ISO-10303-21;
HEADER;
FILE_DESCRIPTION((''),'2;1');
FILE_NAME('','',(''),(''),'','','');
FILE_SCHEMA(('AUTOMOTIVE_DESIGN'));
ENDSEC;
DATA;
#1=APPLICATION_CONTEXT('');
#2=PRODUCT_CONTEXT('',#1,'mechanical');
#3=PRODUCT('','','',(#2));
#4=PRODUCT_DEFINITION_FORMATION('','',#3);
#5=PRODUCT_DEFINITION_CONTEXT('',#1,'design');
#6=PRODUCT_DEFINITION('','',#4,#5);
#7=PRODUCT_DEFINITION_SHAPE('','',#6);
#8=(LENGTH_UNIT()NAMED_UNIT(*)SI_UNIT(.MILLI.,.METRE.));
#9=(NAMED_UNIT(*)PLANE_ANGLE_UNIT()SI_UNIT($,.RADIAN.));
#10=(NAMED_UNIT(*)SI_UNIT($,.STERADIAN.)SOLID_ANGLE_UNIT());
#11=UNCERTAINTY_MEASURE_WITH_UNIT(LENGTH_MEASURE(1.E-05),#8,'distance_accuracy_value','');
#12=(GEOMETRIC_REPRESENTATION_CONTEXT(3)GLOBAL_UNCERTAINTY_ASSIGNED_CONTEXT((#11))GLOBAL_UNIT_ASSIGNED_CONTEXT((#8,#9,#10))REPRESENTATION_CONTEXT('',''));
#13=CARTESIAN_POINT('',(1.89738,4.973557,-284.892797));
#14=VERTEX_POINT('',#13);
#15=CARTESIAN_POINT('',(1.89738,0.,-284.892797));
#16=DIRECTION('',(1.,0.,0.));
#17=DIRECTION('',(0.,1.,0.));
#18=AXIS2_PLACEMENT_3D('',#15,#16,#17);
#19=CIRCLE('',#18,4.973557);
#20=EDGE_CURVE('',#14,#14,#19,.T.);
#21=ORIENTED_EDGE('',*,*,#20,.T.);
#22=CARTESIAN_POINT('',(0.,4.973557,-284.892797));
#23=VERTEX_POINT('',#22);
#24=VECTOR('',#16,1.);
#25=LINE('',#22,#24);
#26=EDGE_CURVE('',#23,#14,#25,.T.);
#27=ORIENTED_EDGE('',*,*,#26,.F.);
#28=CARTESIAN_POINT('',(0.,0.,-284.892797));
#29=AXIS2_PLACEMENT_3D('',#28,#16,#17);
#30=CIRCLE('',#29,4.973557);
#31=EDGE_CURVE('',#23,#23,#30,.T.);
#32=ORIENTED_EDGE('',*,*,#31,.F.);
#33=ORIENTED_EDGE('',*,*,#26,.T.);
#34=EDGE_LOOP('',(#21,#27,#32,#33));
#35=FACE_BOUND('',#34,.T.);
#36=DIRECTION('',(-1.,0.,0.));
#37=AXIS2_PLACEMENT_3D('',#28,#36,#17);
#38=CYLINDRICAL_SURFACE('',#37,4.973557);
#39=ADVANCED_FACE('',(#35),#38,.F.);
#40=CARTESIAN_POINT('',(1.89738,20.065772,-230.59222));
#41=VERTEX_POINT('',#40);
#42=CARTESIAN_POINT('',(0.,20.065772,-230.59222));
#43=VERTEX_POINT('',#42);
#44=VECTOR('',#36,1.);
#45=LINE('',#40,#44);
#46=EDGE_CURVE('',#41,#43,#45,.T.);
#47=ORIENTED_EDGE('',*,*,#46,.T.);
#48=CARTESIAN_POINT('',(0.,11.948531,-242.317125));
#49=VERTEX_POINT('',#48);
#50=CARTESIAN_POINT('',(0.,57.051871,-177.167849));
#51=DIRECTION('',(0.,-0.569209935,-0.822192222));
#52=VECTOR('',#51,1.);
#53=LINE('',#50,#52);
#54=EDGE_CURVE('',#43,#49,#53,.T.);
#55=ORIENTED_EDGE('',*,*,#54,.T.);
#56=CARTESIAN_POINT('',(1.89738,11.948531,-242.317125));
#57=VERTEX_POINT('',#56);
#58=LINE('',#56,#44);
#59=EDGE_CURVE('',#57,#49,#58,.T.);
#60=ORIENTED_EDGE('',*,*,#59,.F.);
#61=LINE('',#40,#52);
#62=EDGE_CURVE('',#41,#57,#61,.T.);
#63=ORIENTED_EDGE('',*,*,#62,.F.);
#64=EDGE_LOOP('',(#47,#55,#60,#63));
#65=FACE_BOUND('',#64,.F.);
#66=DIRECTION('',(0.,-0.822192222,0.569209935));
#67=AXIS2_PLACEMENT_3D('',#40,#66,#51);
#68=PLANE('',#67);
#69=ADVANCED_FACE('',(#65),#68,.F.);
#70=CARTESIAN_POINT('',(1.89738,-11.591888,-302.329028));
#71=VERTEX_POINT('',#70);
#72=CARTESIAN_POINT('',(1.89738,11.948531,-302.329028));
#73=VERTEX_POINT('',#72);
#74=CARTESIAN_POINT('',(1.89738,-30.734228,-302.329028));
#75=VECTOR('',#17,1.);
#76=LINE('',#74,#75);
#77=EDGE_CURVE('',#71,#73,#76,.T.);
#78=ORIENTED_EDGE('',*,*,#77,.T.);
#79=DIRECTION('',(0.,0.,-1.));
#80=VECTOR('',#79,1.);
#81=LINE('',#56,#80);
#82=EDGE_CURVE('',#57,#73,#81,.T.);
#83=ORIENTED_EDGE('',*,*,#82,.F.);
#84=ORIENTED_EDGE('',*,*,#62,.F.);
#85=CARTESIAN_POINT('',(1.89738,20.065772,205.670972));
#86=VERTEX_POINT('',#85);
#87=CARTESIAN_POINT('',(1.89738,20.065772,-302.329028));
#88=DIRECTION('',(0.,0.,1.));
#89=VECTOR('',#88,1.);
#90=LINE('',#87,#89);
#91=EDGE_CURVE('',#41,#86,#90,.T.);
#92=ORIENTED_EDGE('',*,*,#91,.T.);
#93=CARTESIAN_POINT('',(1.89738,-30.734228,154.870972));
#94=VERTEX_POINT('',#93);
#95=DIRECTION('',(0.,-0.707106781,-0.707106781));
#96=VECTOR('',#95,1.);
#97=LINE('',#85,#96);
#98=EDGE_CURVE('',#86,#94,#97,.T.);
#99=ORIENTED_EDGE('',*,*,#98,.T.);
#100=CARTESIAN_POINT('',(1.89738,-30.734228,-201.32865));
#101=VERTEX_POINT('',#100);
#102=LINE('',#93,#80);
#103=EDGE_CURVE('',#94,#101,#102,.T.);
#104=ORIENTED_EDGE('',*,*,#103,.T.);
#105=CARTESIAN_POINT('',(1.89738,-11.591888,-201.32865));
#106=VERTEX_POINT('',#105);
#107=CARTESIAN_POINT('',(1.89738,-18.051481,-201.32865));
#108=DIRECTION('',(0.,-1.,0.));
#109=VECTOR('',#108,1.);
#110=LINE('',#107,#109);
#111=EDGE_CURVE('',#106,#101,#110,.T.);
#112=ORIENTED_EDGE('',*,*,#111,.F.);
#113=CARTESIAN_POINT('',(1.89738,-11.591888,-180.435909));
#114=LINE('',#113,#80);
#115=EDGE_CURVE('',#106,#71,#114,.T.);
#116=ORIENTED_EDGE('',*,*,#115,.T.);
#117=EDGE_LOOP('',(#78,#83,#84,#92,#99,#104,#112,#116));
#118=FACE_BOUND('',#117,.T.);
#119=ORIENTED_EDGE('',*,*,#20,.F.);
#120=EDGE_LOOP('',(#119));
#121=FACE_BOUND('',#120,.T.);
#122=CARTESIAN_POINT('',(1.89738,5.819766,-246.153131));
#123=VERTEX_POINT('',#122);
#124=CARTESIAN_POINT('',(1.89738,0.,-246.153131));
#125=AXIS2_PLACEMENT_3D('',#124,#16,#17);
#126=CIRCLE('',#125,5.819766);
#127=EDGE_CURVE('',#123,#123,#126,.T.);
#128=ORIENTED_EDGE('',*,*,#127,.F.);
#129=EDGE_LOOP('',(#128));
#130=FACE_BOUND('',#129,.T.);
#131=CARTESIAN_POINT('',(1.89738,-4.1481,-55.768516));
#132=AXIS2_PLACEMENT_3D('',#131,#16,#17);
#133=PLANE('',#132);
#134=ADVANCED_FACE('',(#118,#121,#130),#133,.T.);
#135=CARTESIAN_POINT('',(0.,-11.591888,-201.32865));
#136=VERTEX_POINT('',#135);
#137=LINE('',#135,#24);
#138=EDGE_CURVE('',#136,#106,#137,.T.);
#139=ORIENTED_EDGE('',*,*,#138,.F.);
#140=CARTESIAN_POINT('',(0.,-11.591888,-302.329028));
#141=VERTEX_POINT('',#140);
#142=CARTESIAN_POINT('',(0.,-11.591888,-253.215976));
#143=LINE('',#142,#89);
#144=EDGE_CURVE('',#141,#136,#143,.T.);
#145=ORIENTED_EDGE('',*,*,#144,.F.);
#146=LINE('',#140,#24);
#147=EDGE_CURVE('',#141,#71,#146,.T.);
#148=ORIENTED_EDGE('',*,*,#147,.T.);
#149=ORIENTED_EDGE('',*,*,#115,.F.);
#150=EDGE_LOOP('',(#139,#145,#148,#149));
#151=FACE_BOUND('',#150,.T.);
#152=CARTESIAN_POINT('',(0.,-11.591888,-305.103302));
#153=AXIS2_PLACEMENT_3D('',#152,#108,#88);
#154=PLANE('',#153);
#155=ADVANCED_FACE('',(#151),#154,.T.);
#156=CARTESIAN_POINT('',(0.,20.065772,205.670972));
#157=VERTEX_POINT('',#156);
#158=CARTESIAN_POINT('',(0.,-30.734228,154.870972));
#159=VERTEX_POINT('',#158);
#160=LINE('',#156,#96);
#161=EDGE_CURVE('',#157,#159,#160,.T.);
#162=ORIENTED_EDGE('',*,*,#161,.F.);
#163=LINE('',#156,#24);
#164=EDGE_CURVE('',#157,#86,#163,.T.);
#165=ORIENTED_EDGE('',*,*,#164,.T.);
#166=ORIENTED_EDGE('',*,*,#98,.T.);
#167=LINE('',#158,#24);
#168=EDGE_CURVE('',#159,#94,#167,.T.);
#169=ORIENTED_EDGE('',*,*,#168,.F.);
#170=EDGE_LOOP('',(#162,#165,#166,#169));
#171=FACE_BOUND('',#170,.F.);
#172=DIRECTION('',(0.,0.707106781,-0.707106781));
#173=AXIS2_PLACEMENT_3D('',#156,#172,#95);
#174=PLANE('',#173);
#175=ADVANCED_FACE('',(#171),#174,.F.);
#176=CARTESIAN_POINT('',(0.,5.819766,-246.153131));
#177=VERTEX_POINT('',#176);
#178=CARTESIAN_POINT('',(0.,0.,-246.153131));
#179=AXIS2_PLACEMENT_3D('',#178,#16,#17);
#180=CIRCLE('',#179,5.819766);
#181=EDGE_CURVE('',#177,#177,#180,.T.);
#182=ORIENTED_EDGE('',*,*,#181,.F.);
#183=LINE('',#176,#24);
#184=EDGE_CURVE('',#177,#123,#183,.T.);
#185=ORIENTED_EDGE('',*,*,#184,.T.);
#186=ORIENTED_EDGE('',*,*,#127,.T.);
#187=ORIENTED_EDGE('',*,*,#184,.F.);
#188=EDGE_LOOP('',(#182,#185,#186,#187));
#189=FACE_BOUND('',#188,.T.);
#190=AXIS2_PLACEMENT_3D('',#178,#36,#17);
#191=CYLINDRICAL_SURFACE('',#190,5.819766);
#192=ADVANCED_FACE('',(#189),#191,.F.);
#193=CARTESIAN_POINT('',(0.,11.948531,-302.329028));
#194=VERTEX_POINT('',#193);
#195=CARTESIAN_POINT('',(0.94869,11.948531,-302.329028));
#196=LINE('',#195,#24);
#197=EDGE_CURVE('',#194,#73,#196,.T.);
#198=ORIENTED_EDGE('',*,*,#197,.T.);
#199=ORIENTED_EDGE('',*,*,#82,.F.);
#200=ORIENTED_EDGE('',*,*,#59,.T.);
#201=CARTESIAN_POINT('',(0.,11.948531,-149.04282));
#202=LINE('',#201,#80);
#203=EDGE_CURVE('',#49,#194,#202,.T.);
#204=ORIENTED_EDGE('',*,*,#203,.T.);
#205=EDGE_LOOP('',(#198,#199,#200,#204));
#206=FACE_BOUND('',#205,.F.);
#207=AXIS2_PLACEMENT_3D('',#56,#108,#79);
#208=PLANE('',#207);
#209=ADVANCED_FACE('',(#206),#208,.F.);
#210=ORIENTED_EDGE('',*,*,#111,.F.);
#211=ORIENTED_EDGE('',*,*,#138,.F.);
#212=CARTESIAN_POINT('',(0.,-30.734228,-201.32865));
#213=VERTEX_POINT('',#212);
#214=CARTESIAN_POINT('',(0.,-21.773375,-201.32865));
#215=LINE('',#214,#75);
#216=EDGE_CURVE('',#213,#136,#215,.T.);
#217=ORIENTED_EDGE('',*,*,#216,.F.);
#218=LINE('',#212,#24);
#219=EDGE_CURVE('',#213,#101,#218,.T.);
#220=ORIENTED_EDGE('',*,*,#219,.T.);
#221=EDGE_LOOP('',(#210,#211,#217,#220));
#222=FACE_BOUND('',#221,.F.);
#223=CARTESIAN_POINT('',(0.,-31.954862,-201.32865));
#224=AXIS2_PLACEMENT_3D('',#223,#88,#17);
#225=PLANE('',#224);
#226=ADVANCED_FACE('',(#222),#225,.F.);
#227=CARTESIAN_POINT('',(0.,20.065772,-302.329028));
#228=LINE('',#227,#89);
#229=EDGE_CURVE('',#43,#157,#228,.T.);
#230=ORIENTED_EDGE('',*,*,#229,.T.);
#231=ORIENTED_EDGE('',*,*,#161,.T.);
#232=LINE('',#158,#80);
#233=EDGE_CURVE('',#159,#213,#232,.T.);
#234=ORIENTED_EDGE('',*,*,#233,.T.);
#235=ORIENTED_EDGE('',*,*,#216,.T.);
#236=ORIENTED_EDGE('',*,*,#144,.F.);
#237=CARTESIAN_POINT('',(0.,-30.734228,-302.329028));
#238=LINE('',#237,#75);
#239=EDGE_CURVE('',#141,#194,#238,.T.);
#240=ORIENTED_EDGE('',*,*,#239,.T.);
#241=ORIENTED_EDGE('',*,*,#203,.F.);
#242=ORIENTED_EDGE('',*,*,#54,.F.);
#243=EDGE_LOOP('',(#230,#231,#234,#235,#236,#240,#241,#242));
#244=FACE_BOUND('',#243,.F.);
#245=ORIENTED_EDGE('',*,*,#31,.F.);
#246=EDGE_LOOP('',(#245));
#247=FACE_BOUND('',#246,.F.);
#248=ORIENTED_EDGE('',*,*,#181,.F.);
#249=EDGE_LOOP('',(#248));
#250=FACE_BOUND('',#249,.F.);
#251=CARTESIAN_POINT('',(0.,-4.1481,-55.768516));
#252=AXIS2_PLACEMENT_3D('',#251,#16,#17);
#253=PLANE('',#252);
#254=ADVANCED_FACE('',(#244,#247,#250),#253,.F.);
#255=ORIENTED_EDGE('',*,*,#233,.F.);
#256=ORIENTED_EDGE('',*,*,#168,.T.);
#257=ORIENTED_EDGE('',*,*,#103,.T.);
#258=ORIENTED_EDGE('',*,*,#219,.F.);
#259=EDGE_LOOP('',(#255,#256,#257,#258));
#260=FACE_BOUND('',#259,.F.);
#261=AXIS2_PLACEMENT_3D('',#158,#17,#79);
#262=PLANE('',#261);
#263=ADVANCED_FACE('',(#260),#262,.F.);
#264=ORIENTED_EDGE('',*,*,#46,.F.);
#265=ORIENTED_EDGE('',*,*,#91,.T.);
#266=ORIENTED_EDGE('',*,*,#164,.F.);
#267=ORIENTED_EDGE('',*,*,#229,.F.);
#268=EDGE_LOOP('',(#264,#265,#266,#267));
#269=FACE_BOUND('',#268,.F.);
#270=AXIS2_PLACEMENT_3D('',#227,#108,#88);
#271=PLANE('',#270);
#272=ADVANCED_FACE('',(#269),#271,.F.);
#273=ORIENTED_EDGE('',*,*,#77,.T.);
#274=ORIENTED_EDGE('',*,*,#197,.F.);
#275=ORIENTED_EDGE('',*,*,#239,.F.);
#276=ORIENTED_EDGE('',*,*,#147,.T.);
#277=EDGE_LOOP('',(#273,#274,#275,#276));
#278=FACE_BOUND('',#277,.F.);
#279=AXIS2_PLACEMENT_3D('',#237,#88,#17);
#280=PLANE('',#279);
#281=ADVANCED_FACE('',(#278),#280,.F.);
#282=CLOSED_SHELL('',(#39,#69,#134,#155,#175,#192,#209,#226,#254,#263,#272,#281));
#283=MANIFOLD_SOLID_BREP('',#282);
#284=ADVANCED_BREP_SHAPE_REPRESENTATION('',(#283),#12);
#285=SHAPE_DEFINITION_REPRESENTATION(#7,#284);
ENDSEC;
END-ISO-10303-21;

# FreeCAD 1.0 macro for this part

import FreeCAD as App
import Part
import Sketcher
from FreeCAD import Vector
Q = App.Units.Quantity

doc = App.newDocument("Part")
body = doc.addObject("PartDesign::Body", "Body")

sketch1 = body.newObject("Sketcher::SketchObject", "Sketch")
sketch1.AttachmentSupport = (doc.getObject("YZ_Plane"), [""])
sketch1.MapMode = "FlatFace"
sketch1.addGeometry(Part.LineSegment(Vector(20.1, -302.3, 0), Vector(20.1, 205.7, 0)), False)
sketch1.addGeometry(Part.LineSegment(Vector(20.1, 205.7, 0), Vector(-30.7, 154.9, 0)), False)
sketch1.addGeometry(Part.LineSegment(Vector(-30.7, 154.9, 0), Vector(-30.7, -302.3, 0)), False)
sketch1.addGeometry(Part.LineSegment(Vector(-30.7, -302.3, 0), Vector(20.1, -302.3, 0)), False)
sketch1.addGeometry(Part.Circle(Vector(0, -284.9, 0), Vector(0, 0, 1), 5), False)
sketch1.addGeometry(Part.Circle(Vector(0, -246.2, 0), Vector(0, 0, 1), 5.8), False)
sketch1.addConstraint(Sketcher.Constraint("Coincident", 0, 2, 1, 1))
sketch1.addConstraint(Sketcher.Constraint("Coincident", 1, 2, 2, 1))
sketch1.addConstraint(Sketcher.Constraint("Coincident", 2, 2, 3, 1))
sketch1.addConstraint(Sketcher.Constraint("Coincident", 3, 2, 0, 1))
sketch1.addConstraint(Sketcher.Constraint("Vertical", 0))
sketch1.addConstraint(Sketcher.Constraint("Vertical", 2))
sketch1.addConstraint(Sketcher.Constraint("Horizontal", 3))
sketch1.addConstraint(Sketcher.Constraint("PointOnObject", 4, 3, -2))
sketch1.addConstraint(Sketcher.Constraint("PointOnObject", 5, 3, -2))
sketch1.addConstraint(Sketcher.Constraint("DistanceX", 3, 1, 3, 2, Q("2 in")))
sketch1.addConstraint(Sketcher.Constraint("DistanceY", 0, 1, 0, 2, Q("20 in")))
sketch1.addConstraint(Sketcher.Constraint("DistanceY", 2, 2, 2, 1, Q("18 in")))
sketch1.addConstraint(Sketcher.Constraint("Diameter", 4, Q("9.947114 mm")))
sketch1.addConstraint(Sketcher.Constraint("Diameter", 5, Q("11.639532 mm")))
sketch1.addConstraint(Sketcher.Constraint("DistanceY", 5, 3, -1, 1, Q("246.153131 mm")))
sketch1.addConstraint(Sketcher.Constraint("DistanceX", -1, 1, 0, 2, Q("20.065772 mm")))
sketch1.addConstraint(Sketcher.Constraint("DistanceY", -1, 1, 0, 2, Q("205.670972 mm")))
sketch1.addConstraint(Sketcher.Constraint("DistanceY", 4, 3, 0, 2, Q("490.563769 mm")))
pad1 = body.newObject("PartDesign::Pad", "Pad")
pad1.Profile = sketch1
pad1.Length = Q("0.0747 in")

sketch2 = body.newObject("Sketcher::SketchObject", "Sketch001")
sketch2.AttachmentSupport = (doc.getObject("YZ_Plane"), [""])
sketch2.MapMode = "FlatFace"
sketch2.addGeometry(Part.LineSegment(Vector(20.1, -302.3, 0), Vector(20.1, 205.7, 0)), False)
sketch2.addGeometry(Part.LineSegment(Vector(20.1, 205.7, 0), Vector(-30.7, 154.9, 0)), False)
sketch2.addGeometry(Part.LineSegment(Vector(-30.7, 154.9, 0), Vector(-30.7, -302.3, 0)), False)
sketch2.addGeometry(Part.LineSegment(Vector(-30.7, -302.3, 0), Vector(20.1, -302.3, 0)), False)
sketch2.addGeometry(Part.Circle(Vector(0, -284.9, 0), Vector(0, 0, 1), 5), False)
sketch2.addGeometry(Part.Circle(Vector(0, -246.2, 0), Vector(0, 0, 1), 5.8), False)
sketch2.addConstraint(Sketcher.Constraint("Coincident", 0, 2, 1, 1))
sketch2.addConstraint(Sketcher.Constraint("Coincident", 1, 2, 2, 1))
sketch2.addConstraint(Sketcher.Constraint("Coincident", 2, 2, 3, 1))
sketch2.addConstraint(Sketcher.Constraint("Coincident", 3, 2, 0, 1))
sketch2.addConstraint(Sketcher.Constraint("Vertical", 0))
sketch2.addConstraint(Sketcher.Constraint("Vertical", 2))
sketch2.addConstraint(Sketcher.Constraint("Horizontal", 3))
sketch2.addConstraint(Sketcher.Constraint("PointOnObject", 4, 3, -2))
sketch2.addConstraint(Sketcher.Constraint("PointOnObject", 5, 3, -2))
sketch2.addConstraint(Sketcher.Constraint("DistanceX", 3, 1, 3, 2, Q("2 in")))
sketch2.addConstraint(Sketcher.Constraint("DistanceY", 0, 1, 0, 2, Q("20 in")))
sketch2.addConstraint(Sketcher.Constraint("DistanceY", 2, 2, 2, 1, Q("18 in")))
sketch2.addConstraint(Sketcher.Constraint("Diameter", 4, Q("9.947114 mm")))
sketch2.addConstraint(Sketcher.Constraint("Diameter", 5, Q("11.639532 mm")))
sketch2.addConstraint(Sketcher.Constraint("DistanceY", 5, 3, -1, 1, Q("246.153131 mm")))
sketch2.addConstraint(Sketcher.Constraint("DistanceX", -1, 1, 0, 2, Q("20.065772 mm")))
sketch2.addConstraint(Sketcher.Constraint("DistanceY", -1, 1, 0, 2, Q("205.670972 mm")))
sketch2.addConstraint(Sketcher.Constraint("DistanceY", 4, 3, 0, 2, Q("490.563769 mm")))
pad2 = body.newObject("PartDesign::Pad", "Pad001")
pad2.Profile = sketch2
pad2.Length = Q("0.0747 in")

sketch3 = body.newObject("Sketcher::SketchObject", "Sketch002")
sketch3.AttachmentSupport = (doc.getObject("YZ_Plane"), [""])
sketch3.MapMode = "FlatFace"
sketch3.AttachmentOffset = App.Placement(Vector(0, 0, 0.0747 * 25.4), App.Rotation())
sketch3.addGeometry(Part.LineSegment(Vector(-30.7, -234.1, 0), Vector(-31.3, -233.7, 0)), False)
sketch3.addGeometry(Part.LineSegment(Vector(-31.3, -233.7, 0), Vector(-31.3, -303, 0)), False)
sketch3.addGeometry(Part.LineSegment(Vector(-31.3, -303, 0), Vector(-20, -303.2, 0)), False)
sketch3.addGeometry(Part.LineSegment(Vector(-20, -303.2, 0), Vector(-20, -242.3, 0)), False)
sketch3.addGeometry(Part.LineSegment(Vector(-20, -242.3, 0), Vector(-30.7, -234.1, 0)), False)
sketch3.addGeometry(Part.LineSegment(Vector(11.9, -303.2, 0), Vector(20.3, -303.2, 0)), False)
sketch3.addGeometry(Part.LineSegment(Vector(20.3, -303.2, 0), Vector(20.9, -229.3, 0)), False)
sketch3.addGeometry(Part.LineSegment(Vector(20.9, -229.3, 0), Vector(20.1, -230.6, 0)), False)
sketch3.addGeometry(Part.LineSegment(Vector(20.1, -230.6, 0), Vector(11.9, -242.3, 0)), False)
sketch3.addGeometry(Part.LineSegment(Vector(11.9, -242.3, 0), Vector(11.9, -303.2, 0)), False)
sketch3.addConstraint(Sketcher.Constraint("Coincident", 0, 2, 1, 1))
sketch3.addConstraint(Sketcher.Constraint("Coincident", 1, 2, 2, 1))
sketch3.addConstraint(Sketcher.Constraint("Coincident", 2, 2, 3, 1))
sketch3.addConstraint(Sketcher.Constraint("Coincident", 3, 2, 4, 1))
sketch3.addConstraint(Sketcher.Constraint("Coincident", 4, 2, 0, 1))
sketch3.addConstraint(Sketcher.Constraint("Coincident", 5, 2, 6, 1))
sketch3.addConstraint(Sketcher.Constraint("Coincident", 6, 2, 7, 1))
sketch3.addConstraint(Sketcher.Constraint("Coincident", 7, 2, 8, 1))
sketch3.addConstraint(Sketcher.Constraint("Coincident", 8, 2, 9, 1))
sketch3.addConstraint(Sketcher.Constraint("Coincident", 9, 2, 5, 1))
sketch3.addConstraint(Sketcher.Constraint("Vertical", 1))
sketch3.addConstraint(Sketcher.Constraint("Vertical", 3))
sketch3.addConstraint(Sketcher.Constraint("Horizontal", 5))
sketch3.addConstraint(Sketcher.Constraint("Vertical", 9))
sketch3.addConstraint(Sketcher.Constraint("Parallel", 0, 4))
sketch3.addConstraint(Sketcher.Constraint("Parallel", 7, 8))
sketch3.addConstraint(Sketcher.Constraint("Horizontal", 2, 2, 5, 2))
sketch3.addConstraint(Sketcher.Constraint("Horizontal", 3, 2, 8, 2))
sketch3.addConstraint(Sketcher.Constraint("DistanceX", 4, 2, 7, 2, Q("2 in")))
sketch3.addConstraint(Sketcher.Constraint("Distance", 6, Q("2.9069999 in")))
sketch3.addConstraint(Sketcher.Constraint("DistanceX", 0, 2, 6, 2, Q("52.216699 mm")))
sketch3.addConstraint(Sketcher.Constraint("DistanceX", 3, 2, 8, 2, Q("31.928801 mm")))
sketch3.addConstraint(Sketcher.Constraint("Distance", 0, Q("0.697589 mm")))
sketch3.addConstraint(Sketcher.Constraint("Distance", 4, Q("13.54204 mm")))
sketch3.addConstraint(Sketcher.Constraint("Distance", 8, Q("14.26054 mm")))
sketch3.addConstraint(Sketcher.Constraint("DistanceX", 5, 1, 5, 2, Q("8.375966 mm")))
sketch3.addConstraint(Sketcher.Constraint("DistanceY", 1, 2, 1, 1, Q("69.367454 mm")))
sketch3.addConstraint(Sketcher.Constraint("DistanceY", 3, 1, 3, 2, Q("60.864255 mm")))
sketch3.addConstraint(Sketcher.Constraint("DistanceY", 0, 2, -1, 1, Q("233.662769 mm")))
sketch3.addConstraint(Sketcher.Constraint("DistanceX", 2, 2, -1, 1, Q("19.98027 mm")))
pocket1 = body.newObject("PartDesign::Pocket", "Pocket")
pocket1.Profile = sketch3
pocket1.Length = Q("1 in")

sketch4 = body.newObject("Sketcher::SketchObject", "Sketch003")
sketch4.AttachmentSupport = (doc.getObject("YZ_Plane"), [""])
sketch4.MapMode = "FlatFace"
sketch4.addGeometry(Part.LineSegment(Vector(-32, -201, 0), Vector(-32, -305, 0)), False)
sketch4.addGeometry(Part.LineSegment(Vector(-32, -305, 0), Vector(-12, -305, 0)), False)
sketch4.addGeometry(Part.LineSegment(Vector(-12, -305, 0), Vector(-12, -201, 0)), False)
sketch4.addGeometry(Part.LineSegment(Vector(-12, -201, 0), Vector(-32, -201, 0)), False)
sketch4.addConstraint(Sketcher.Constraint("Coincident", 0, 2, 1, 1))
sketch4.addConstraint(Sketcher.Constraint("Coincident", 1, 2, 2, 1))
sketch4.addConstraint(Sketcher.Constraint("Coincident", 2, 2, 3, 1))
sketch4.addConstraint(Sketcher.Constraint("Coincident", 3, 2, 0, 1))
sketch4.addConstraint(Sketcher.Constraint("Vertical", 0))
sketch4.addConstraint(Sketcher.Constraint("Horizontal", 1))
sketch4.addConstraint(Sketcher.Constraint("Vertical", 2))
sketch4.addConstraint(Sketcher.Constraint("Horizontal", 3))
sketch4.addConstraint(Sketcher.Constraint("DistanceY", 0, 2, 0, 1, Q("103.774652 mm")))
sketch4.addConstraint(Sketcher.Constraint("DistanceY", 0, 2, -1, 1, Q("305.103302 mm")))
sketch4.addConstraint(Sketcher.Constraint("DistanceX", 1, 1, 1, 2, Q("20.362974 mm")))
sketch4.addConstraint(Sketcher.Constraint("DistanceX", 0, 2, -1, 1, Q("31.954862 mm")))
pocket2 = body.newObject("PartDesign::Pocket", "Pocket001")
pocket2.Profile = sketch4
pocket2.Type = "ThroughAll"
pocket2.Reversed = True

doc.recompute()
